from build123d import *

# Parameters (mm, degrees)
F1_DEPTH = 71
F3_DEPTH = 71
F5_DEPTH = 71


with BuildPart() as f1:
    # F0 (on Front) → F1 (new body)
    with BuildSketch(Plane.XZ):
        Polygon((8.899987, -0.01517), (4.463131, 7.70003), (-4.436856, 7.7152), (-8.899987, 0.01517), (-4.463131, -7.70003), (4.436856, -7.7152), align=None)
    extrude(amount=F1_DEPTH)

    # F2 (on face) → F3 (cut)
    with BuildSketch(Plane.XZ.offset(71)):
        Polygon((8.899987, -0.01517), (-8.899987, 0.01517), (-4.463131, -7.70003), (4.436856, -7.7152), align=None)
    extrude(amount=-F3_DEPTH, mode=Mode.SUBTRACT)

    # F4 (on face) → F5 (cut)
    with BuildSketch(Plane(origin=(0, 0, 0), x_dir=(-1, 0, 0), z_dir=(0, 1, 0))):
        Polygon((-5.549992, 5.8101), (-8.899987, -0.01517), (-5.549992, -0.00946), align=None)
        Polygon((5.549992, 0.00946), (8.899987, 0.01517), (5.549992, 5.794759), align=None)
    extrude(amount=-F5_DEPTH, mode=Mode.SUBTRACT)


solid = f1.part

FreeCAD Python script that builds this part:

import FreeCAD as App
import Part
import Sketcher
from FreeCAD import Vector


def add_polygon(sketch, points):
    """Adds a closed chain of lines whose ends are joined by coincident constraints."""
    first, n = sketch.GeometryCount, len(points)
    for a, b in zip(points, points[1:] + points[:1]):
        sketch.addGeometry(Part.LineSegment(App.Vector(*a, 0), App.Vector(*b, 0)), False)
    for i in range(n):
        sketch.addConstraint(Sketcher.Constraint("Coincident", first + i, 2, first + (i + 1) % n, 1))

doc = App.newDocument("Part")
body = doc.addObject("PartDesign::Body", "Body")

# Sketch on XZ plane
sketch1 = doc.addObject("Sketcher::SketchObject", "Sketch")
body.addObject(sketch1)
sketch1.AttachmentSupport = (doc.XZ_Plane, [""])
sketch1.MapMode = "FlatFace"
add_polygon(sketch1, [(9, 0), (4, 8), (-4, 8), (-9, 0), (-4, -8), (4, -8)])  # lines 0-5
sketch1.addConstraint([
    Sketcher.Constraint("Symmetric", 0, 2, 3, 2, -1, 1),
    Sketcher.Constraint("Symmetric", 1, 2, 4, 2, -1, 1),
    Sketcher.Constraint("Symmetric", 2, 2, 5, 2, -1, 1),
    Sketcher.Constraint("Equal", 0, 1),
    Sketcher.Constraint("Equal", 1, 2),
    Sketcher.Constraint("Distance", 0, 8.9),
    Sketcher.Constraint("DistanceY", -1, 1, 1, 2, 7.7152),
    Sketcher.Constraint("DistanceY", 3, 2, 2, 2, 7.7152),
    Sketcher.Constraint("DistanceX", -1, 1, 0, 2, 4.463131),
])
pad1 = doc.addObject("PartDesign::Pad", "Pad")
body.addObject(pad1)
pad1.Profile = sketch1
pad1.Length = 71

# Sketch on XZ plane
sketch2 = doc.addObject("Sketcher::SketchObject", "Sketch001")
body.addObject(sketch2)
sketch2.AttachmentSupport = (doc.XZ_Plane, [""])
sketch2.MapMode = "FlatFace"
sketch2.AttachmentOffset = App.Placement(Vector(0, 0, 71), App.Rotation())
add_polygon(sketch2, [(9, 0), (-9, 0), (-4, -8), (4, -8)])  # lines 0-3
sketch2.addConstraint([
    Sketcher.Constraint("Symmetric", 0, 2, 3, 2, -1, 1),
    Sketcher.Constraint("Parallel", 0, 2),
    Sketcher.Constraint("Equal", 1, 2),
    Sketcher.Constraint("Equal", 2, 3),
    Sketcher.Constraint("Distance", 0, 17.8),
    Sketcher.Constraint("Distance", 1, 8.9),
    Sketcher.Constraint("DistanceY", 2, 2, -1, 1, 7.7152),
])
pocket1 = doc.addObject("PartDesign::Pocket", "Pocket")
body.addObject(pocket1)
pocket1.Profile = sketch2
pocket1.Length = 71

# Sketch on XZ plane
sketch3 = doc.addObject("Sketcher::SketchObject", "Sketch002")
body.addObject(sketch3)
sketch3.AttachmentSupport = (doc.XZ_Plane, [""])
sketch3.MapMode = "FlatFace"
add_polygon(sketch3, [(5.5, 5.8), (8.9, 0), (5.5, 0)])  # lines 0-2
add_polygon(sketch3, [(-5.5, 0), (-8.9, 0), (-5.5, 5.8)])  # lines 3-5
sketch3.addConstraint([
    Sketcher.Constraint("Vertical", 2),
    Sketcher.Constraint("Vertical", 5),
    Sketcher.Constraint("Symmetric", 0, 2, 3, 2, -1, 1),
    Sketcher.Constraint("Symmetric", 1, 2, 5, 2, -1, 1),
    Sketcher.Constraint("Distance", 1, 3.35),
    Sketcher.Constraint("DistanceY", 5, 2, 5, 1, 5.785299),
    Sketcher.Constraint("DistanceY", 2, 1, 2, 2, 5.81956),
    Sketcher.Constraint("DistanceY", -1, 1, 2, 2, 5.8101),
    Sketcher.Constraint("Distance", 0, 6.719839),
    Sketcher.Constraint("DistanceX", -1, 1, 1, 2, 5.549992),
])
pocket2 = doc.addObject("PartDesign::Pocket", "Pocket001")
body.addObject(pocket2)
pocket2.Profile = sketch3
pocket2.Length = 71
pocket2.Reversed = True

doc.recompute()
